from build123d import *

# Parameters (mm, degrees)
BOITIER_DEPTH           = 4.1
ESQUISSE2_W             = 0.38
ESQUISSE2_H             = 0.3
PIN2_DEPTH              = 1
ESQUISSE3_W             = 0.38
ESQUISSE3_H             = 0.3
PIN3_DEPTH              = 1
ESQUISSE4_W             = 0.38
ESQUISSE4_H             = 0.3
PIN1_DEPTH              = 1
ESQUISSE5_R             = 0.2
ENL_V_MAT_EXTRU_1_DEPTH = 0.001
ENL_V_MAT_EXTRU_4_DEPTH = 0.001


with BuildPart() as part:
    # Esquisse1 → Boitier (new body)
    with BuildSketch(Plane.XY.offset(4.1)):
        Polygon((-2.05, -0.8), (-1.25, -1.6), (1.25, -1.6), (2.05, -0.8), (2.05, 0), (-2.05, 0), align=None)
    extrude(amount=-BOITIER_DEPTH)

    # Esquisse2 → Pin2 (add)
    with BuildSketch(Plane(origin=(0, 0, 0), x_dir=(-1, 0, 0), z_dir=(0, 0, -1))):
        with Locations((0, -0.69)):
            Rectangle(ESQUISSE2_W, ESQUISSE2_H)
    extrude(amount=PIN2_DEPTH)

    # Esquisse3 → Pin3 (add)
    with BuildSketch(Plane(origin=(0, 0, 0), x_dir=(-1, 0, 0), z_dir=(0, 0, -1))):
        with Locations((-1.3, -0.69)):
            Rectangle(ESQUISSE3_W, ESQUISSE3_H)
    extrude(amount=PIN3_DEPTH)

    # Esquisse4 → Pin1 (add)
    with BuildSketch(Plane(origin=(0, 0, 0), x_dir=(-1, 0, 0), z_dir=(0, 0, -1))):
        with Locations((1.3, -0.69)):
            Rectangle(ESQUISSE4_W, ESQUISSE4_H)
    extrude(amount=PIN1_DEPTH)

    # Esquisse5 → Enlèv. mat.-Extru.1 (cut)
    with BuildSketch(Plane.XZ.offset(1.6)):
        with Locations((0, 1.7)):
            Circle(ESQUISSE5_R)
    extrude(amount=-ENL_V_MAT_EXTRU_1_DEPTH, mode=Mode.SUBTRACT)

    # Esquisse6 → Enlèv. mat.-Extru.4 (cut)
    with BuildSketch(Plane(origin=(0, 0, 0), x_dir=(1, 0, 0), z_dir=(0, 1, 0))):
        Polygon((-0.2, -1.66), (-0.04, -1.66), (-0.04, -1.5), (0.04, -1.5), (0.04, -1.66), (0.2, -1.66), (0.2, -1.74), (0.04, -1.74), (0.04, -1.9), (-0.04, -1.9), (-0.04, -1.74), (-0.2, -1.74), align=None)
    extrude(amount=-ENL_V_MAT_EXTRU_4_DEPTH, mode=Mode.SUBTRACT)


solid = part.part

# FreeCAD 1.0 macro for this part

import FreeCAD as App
import Part
import Sketcher
Q = App.Units.Quantity


def add_polygon(sketch, points):
    """Adds a closed chain of lines whose ends are joined by coincident constraints."""
    first, n = sketch.GeometryCount, len(points)
    for a, b in zip(points, points[1:] + points[:1]):
        sketch.addGeometry(Part.LineSegment(App.Vector(*a, 0), App.Vector(*b, 0)), False)
    for i in range(n):
        sketch.addConstraint(Sketcher.Constraint("Coincident", first + i, 2, first + (i + 1) % n, 1))

doc = App.newDocument("Part")
body = doc.addObject("PartDesign::Body", "Body")

sketch1 = body.newObject("Sketcher::SketchObject", "Sketch")
sketch1.AttachmentSupport = (doc.getObject("XY_Plane"), [""])
sketch1.MapMode = "FlatFace"
sketch1.AttachmentOffset = App.Placement(App.Vector(0, 0, 4.1), App.Rotation())
add_polygon(sketch1, [(-2, -0.8), (-1.2, -1.6), (1.2, -1.6), (2, -0.8), (2, 0), (-2, 0)])
sketch1.addConstraint([
    Sketcher.Constraint("Horizontal", 1),
    Sketcher.Constraint("Vertical", 3),
    Sketcher.Constraint("Horizontal", 4),
    Sketcher.Constraint("Vertical", 5),
    Sketcher.Constraint("Symmetric", 3, 2, 4, 2, -1, 1),
    Sketcher.Constraint("Perpendicular", 0, 2),
    Sketcher.Constraint("Horizontal", 2, 2, 5, 2),
    Sketcher.Constraint("Equal", 0, 2),
    Sketcher.Constraint("DistanceX", 1, 1, 1, 2, Q("2.5 mm")),
    Sketcher.Constraint("DistanceX", 4, 2, 4, 1, Q("4.1 mm")),
    Sketcher.Constraint("DistanceY", 3, 1, 3, 2, Q("0.8 mm")),
])
pad1 = body.newObject("PartDesign::Pad", "Pad")
pad1.Profile = sketch1
pad1.Length = 4.1
pad1.Reversed = True

sketch2 = body.newObject("Sketcher::SketchObject", "Sketch001")
sketch2.AttachmentSupport = (doc.getObject("XY_Plane"), [""])
sketch2.MapMode = "FlatFace"
add_polygon(sketch2, [(0.19, -0.54), (0.19, -0.84), (-0.19, -0.84), (-0.19, -0.54)])
sketch2.addConstraint([
    Sketcher.Constraint("Vertical", 0),
    Sketcher.Constraint("Horizontal", 1),
    Sketcher.Constraint("Vertical", 2),
    Sketcher.Constraint("Horizontal", 3),
    Sketcher.Constraint("DistanceY", 0, 2, 0, 1, Q("0.3 mm")),
    Sketcher.Constraint("DistanceX", 1, 2, 1, 1, Q("0.38 mm")),
    Sketcher.Constraint("DistanceX", -1, 1, 0, 2, Q("0.19 mm")),
    Sketcher.Constraint("DistanceY", 0, 2, -1, 1, Q("0.84 mm")),
])
pad2 = body.newObject("PartDesign::Pad", "Pad001")
pad2.Profile = sketch2
pad2.Length = 1
pad2.Reversed = True

sketch3 = body.newObject("Sketcher::SketchObject", "Sketch002")
sketch3.AttachmentSupport = (doc.getObject("XY_Plane"), [""])
sketch3.MapMode = "FlatFace"
add_polygon(sketch3, [(1.49, -0.54), (1.49, -0.84), (1.11, -0.84), (1.11, -0.54)])
sketch3.addConstraint([
    Sketcher.Constraint("Vertical", 0),
    Sketcher.Constraint("Horizontal", 1),
    Sketcher.Constraint("Vertical", 2),
    Sketcher.Constraint("Horizontal", 3),
    Sketcher.Constraint("DistanceY", 0, 2, 0, 1, Q("0.3 mm")),
    Sketcher.Constraint("DistanceX", 1, 2, 1, 1, Q("0.38 mm")),
    Sketcher.Constraint("DistanceX", -1, 1, 0, 2, Q("1.49 mm")),
    Sketcher.Constraint("DistanceY", 0, 2, -1, 1, Q("0.84 mm")),
])
pad3 = body.newObject("PartDesign::Pad", "Pad002")
pad3.Profile = sketch3
pad3.Length = 1
pad3.Reversed = True

sketch4 = body.newObject("Sketcher::SketchObject", "Sketch003")
sketch4.AttachmentSupport = (doc.getObject("XY_Plane"), [""])
sketch4.MapMode = "FlatFace"
add_polygon(sketch4, [(-1.11, -0.54), (-1.11, -0.84), (-1.49, -0.84), (-1.49, -0.54)])
sketch4.addConstraint([
    Sketcher.Constraint("Vertical", 0),
    Sketcher.Constraint("Horizontal", 1),
    Sketcher.Constraint("Vertical", 2),
    Sketcher.Constraint("Horizontal", 3),
    Sketcher.Constraint("DistanceY", 0, 2, 0, 1, Q("0.3 mm")),
    Sketcher.Constraint("DistanceX", 1, 2, 1, 1, Q("0.38 mm")),
    Sketcher.Constraint("DistanceX", 0, 2, -1, 1, Q("1.11 mm")),
    Sketcher.Constraint("DistanceY", 0, 2, -1, 1, Q("0.84 mm")),
])
pad4 = body.newObject("PartDesign::Pad", "Pad003")
pad4.Profile = sketch4
pad4.Length = 1
pad4.Reversed = True

sketch5 = body.newObject("Sketcher::SketchObject", "Sketch004")
sketch5.AttachmentSupport = (doc.getObject("XZ_Plane"), [""])
sketch5.MapMode = "FlatFace"
sketch5.AttachmentOffset = App.Placement(App.Vector(0, 0, 1.6), App.Rotation())
sketch5.addGeometry(Part.Circle(App.Vector(0, 1.7, 0), App.Vector(0, 0, 1), 0.2), False)
sketch5.addConstraint([
    Sketcher.Constraint("PointOnObject", 0, 3, -2),
    Sketcher.Constraint("Diameter", 0, Q("0.4 mm")),
    Sketcher.Constraint("DistanceY", -1, 1, 0, 3, Q("1.7 mm")),
])
pocket1 = body.newObject("PartDesign::Pocket", "Pocket")
pocket1.Profile = sketch5
pocket1.Length = 0.001

sketch6 = body.newObject("Sketcher::SketchObject", "Sketch005")
sketch6.AttachmentSupport = (doc.getObject("XZ_Plane"), [""])
sketch6.MapMode = "FlatFace"
add_polygon(sketch6, [(-0.04, 1.66), (-0.2, 1.66), (-0.2, 1.74), (-0.04, 1.74), (-0.04, 1.9), (0.04, 1.9), (0.04, 1.74), (0.2, 1.74), (0.2, 1.66), (0.04, 1.66), (0.04, 1.5), (-0.04, 1.5)])
sketch6.addConstraint([
    Sketcher.Constraint("Horizontal", 0),
    Sketcher.Constraint("Vertical", 1),
    Sketcher.Constraint("Horizontal", 2),
    Sketcher.Constraint("Vertical", 3),
    Sketcher.Constraint("Horizontal", 4),
    Sketcher.Constraint("Vertical", 5),
    Sketcher.Constraint("Horizontal", 6),
    Sketcher.Constraint("Vertical", 7),
    Sketcher.Constraint("Horizontal", 8),
    Sketcher.Constraint("Vertical", 9),
    Sketcher.Constraint("Horizontal", 10),
    Sketcher.Constraint("Vertical", 11),
    Sketcher.Constraint("Symmetric", 2, 2, 5, 2, -2),
    Sketcher.Constraint("Symmetric", 0, 2, 7, 2, -2),
    Sketcher.Constraint("Vertical", 5, 2, 8, 2),
    Sketcher.Constraint("Vertical", 3, 2, 10, 2),
    Sketcher.Constraint("Equal", 10, 1),
    Sketcher.Constraint("Equal", 8, 3),
    Sketcher.Constraint("Equal", 5, 9),
    Sketcher.Constraint("DistanceX", 0, 2, 0, 1, Q("0.16 mm")),
    Sketcher.Constraint("DistanceX", 4, 1, 4, 2, Q("0.08 mm")),
    Sketcher.Constraint("DistanceY", -1, 1, 3, 2, Q("1.9 mm")),
])
pocket2 = body.newObject("PartDesign::Pocket", "Pocket001")
pocket2.Profile = sketch6
pocket2.Length = 0.001
pocket2.Reversed = True

doc.recompute()
